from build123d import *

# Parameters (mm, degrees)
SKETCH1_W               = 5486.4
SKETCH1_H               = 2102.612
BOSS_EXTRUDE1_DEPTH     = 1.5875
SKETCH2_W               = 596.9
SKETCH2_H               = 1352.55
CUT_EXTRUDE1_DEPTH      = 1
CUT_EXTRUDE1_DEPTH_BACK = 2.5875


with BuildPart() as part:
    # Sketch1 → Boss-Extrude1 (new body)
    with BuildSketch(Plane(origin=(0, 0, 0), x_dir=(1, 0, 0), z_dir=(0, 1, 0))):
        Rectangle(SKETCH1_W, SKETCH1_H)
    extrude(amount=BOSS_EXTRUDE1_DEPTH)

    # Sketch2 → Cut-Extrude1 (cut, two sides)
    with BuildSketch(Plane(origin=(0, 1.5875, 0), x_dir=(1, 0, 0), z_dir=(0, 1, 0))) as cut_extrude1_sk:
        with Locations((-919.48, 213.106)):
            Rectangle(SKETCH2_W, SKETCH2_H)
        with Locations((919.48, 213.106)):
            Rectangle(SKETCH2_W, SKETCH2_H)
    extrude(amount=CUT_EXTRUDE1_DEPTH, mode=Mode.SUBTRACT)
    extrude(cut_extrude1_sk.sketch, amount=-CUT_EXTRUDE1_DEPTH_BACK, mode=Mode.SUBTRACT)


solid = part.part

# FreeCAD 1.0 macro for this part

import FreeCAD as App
import Part
import Sketcher
from FreeCAD import Vector
Q = App.Units.Quantity


def add_polygon(sketch, points):
    """Adds a closed chain of lines whose ends are joined by coincident constraints."""
    first, n = sketch.GeometryCount, len(points)
    for a, b in zip(points, points[1:] + points[:1]):
        sketch.addGeometry(Part.LineSegment(App.Vector(*a, 0), App.Vector(*b, 0)), False)
    for i in range(n):
        sketch.addConstraint(Sketcher.Constraint("Coincident", first + i, 2, first + (i + 1) % n, 1))

doc = App.newDocument("Part")
params = doc.addObject("Spreadsheet::Sheet", "Params")
for row, (alias, value) in enumerate([
    ("sketch1_width", "216 in"),
    ("sketch1_height", "82.78 in"),
    ("pad1_length", "0.0625 in"),
    ("sketch2_width", "23.5 in"),
    ("sketch2_height", "53.25 in"),
], start=1):
    params.set(f"A{row}", alias)
    params.set(f"B{row}", "=" + value)
    params.setAlias(f"B{row}", alias)

body = doc.addObject("PartDesign::Body", "Body")

# Sketch on XZ plane
sketch1 = body.newObject("Sketcher::SketchObject", "Sketch")
sketch1.AttachmentSupport = (doc.getObject("XZ_Plane"), [""])
sketch1.MapMode = "FlatFace"
add_polygon(sketch1, [(-2743, -1051), (-2743, 1051), (2743, 1051), (2743, -1051)])  # lines 0-3
sketch1.addConstraint(Sketcher.Constraint("Vertical", 0))
sketch1.addConstraint(Sketcher.Constraint("Horizontal", 1))
sketch1.addConstraint(Sketcher.Constraint("Vertical", 2))
sketch1.addConstraint(Sketcher.Constraint("Horizontal", 3))
sketch1.addConstraint(Sketcher.Constraint("Symmetric", 0, 2, 2, 2, -1, 1))
sketch1.addConstraint(Sketcher.Constraint("DistanceX", 1, 1, 1, 2, Q("216 in")))
sketch1.addConstraint(Sketcher.Constraint("DistanceY", 0, 1, 0, 2, Q("82.78 in")))
sketch1.setExpression("Constraints[9]", "Params.sketch1_width")
sketch1.setExpression("Constraints[10]", "Params.sketch1_height")
pad1 = body.newObject("PartDesign::Pad", "Pad")
pad1.Profile = sketch1
pad1.setExpression("Length", "Params.pad1_length")
pad1.Reversed = True

# Sketch on XZ plane
sketch2 = body.newObject("Sketcher::SketchObject", "Sketch001")
sketch2.AttachmentSupport = (doc.getObject("XZ_Plane"), [""])
sketch2.MapMode = "FlatFace"
sketch2.AttachmentOffset = App.Placement(Vector(0, 0, -0.0625 * 25.4), App.Rotation())
add_polygon(sketch2, [(-1218, -889), (-1218, 463), (-621, 463), (-621, -889)])  # lines 0-3
add_polygon(sketch2, [(621, -889), (621, 463), (1218, 463), (1218, -889)])  # lines 4-7
sketch2.addConstraint(Sketcher.Constraint("Vertical", 0))
sketch2.addConstraint(Sketcher.Constraint("Horizontal", 1))
sketch2.addConstraint(Sketcher.Constraint("Vertical", 2))
sketch2.addConstraint(Sketcher.Constraint("Horizontal", 3))
sketch2.addConstraint(Sketcher.Constraint("Vertical", 4))
sketch2.addConstraint(Sketcher.Constraint("Horizontal", 5))
sketch2.addConstraint(Sketcher.Constraint("Vertical", 6))
sketch2.addConstraint(Sketcher.Constraint("Horizontal", 7))
sketch2.addConstraint(Sketcher.Constraint("Symmetric", 1, 2, 4, 2, -2))
sketch2.addConstraint(Sketcher.Constraint("Symmetric", 3, 2, 6, 2, -2))
sketch2.addConstraint(Sketcher.Constraint("DistanceX", 1, 1, 1, 2, Q("23.5 in")))
sketch2.addConstraint(Sketcher.Constraint("DistanceY", 0, 1, 0, 2, Q("53.25 in")))
sketch2.addConstraint(Sketcher.Constraint("DistanceX", 1, 2, 4, 2, Q("48.9 in")))
sketch2.addConstraint(Sketcher.Constraint("DistanceY", -1, 1, 0, 2, Q("18.235 in")))
sketch2.setExpression("Constraints[18]", "Params.sketch2_width")
sketch2.setExpression("Constraints[19]", "Params.sketch2_height")
pocket1 = body.newObject("PartDesign::Pocket", "Pocket")
pocket1.Profile = sketch2
pocket1.Type = "ThroughAll"
pocket1.Midplane = True

doc.recompute()
